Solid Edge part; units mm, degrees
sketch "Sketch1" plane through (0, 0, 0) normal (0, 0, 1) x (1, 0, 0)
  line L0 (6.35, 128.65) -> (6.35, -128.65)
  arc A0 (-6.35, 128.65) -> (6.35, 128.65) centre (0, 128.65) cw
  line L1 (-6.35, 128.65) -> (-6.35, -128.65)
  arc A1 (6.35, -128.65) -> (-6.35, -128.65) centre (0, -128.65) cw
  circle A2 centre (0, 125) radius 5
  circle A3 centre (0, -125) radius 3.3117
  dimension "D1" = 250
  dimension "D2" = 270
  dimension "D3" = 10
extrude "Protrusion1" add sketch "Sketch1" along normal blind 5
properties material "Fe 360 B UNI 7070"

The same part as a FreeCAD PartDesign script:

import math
import FreeCAD as App
import Part
import Sketcher
from FreeCAD import Vector

doc = App.newDocument("Part")
body = doc.addObject("PartDesign::Body", "Body")

# Sketch on XY plane
sketch1 = doc.addObject("Sketcher::SketchObject", "Sketch")
body.addObject(sketch1)
sketch1.AttachmentSupport = (doc.XY_Plane, [""])
sketch1.MapMode = "FlatFace"
sketch1.addGeometry(Part.LineSegment(Vector(6.3, -128.7, 0), Vector(6.3, 128.7, 0)), False)
sketch1.addGeometry(Part.ArcOfCircle(Part.Circle(Vector(0, 128.7, 0), Vector(0, 0, 1), 6.3), math.radians(0), math.radians(180)), False)
sketch1.addGeometry(Part.LineSegment(Vector(-6.3, 128.7, 0), Vector(-6.3, -128.7, 0)), False)
sketch1.addGeometry(Part.ArcOfCircle(Part.Circle(Vector(0, -128.7, 0), Vector(0, 0, 1), 6.3), math.radians(180), math.radians(360)), False)
sketch1.addGeometry(Part.Circle(Vector(0, -125, 0), Vector(0, 0, 1), 3.3), False)
sketch1.addGeometry(Part.Circle(Vector(0, 125, 0), Vector(0, 0, 1), 5), False)
sketch1.addConstraint(Sketcher.Constraint("Tangent", 0, 2, 1, 1))
sketch1.addConstraint(Sketcher.Constraint("Tangent", 1, 2, 2, 1))
sketch1.addConstraint(Sketcher.Constraint("Tangent", 2, 2, 3, 1))
sketch1.addConstraint(Sketcher.Constraint("Tangent", 3, 2, 0, 1))
sketch1.addConstraint(Sketcher.Constraint("Vertical", 0))
sketch1.addConstraint(Sketcher.Constraint("Vertical", 2))
sketch1.addConstraint(Sketcher.Constraint("Symmetric", 1, 3, 3, 3, -1, 1))
sketch1.addConstraint(Sketcher.Constraint("Symmetric", 4, 3, 5, 3, -1, 1))
sketch1.addConstraint(Sketcher.Constraint("PointOnObject", 4, 3, -2))
sketch1.addConstraint(Sketcher.Constraint("Diameter", 5, 10.0))
sketch1.addConstraint(Sketcher.Constraint("Radius", 1, 6.35))
sketch1.addConstraint(Sketcher.Constraint("DistanceY", 0, 1, 0, 2, 257.3))
sketch1.addConstraint(Sketcher.Constraint("DistanceY", 4, 3, -1, 1, 125.0))
sketch1.addConstraint(Sketcher.Constraint("Diameter", 4, 6.6234))
pad1 = doc.addObject("PartDesign::Pad", "Pad")
body.addObject(pad1)
pad1.Profile = sketch1
pad1.Length = 5

doc.recompute()
